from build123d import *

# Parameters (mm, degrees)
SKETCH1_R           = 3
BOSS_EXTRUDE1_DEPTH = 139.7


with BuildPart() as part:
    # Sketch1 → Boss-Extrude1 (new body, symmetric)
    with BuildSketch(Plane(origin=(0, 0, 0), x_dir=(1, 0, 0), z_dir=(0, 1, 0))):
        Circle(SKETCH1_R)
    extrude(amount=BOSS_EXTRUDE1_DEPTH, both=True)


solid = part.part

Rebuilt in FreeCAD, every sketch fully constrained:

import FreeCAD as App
import Part
import Sketcher

V = App.Vector
Q = App.Units.Quantity

doc = App.newDocument("Part")
body = doc.addObject("PartDesign::Body", "Body")

# Sketch on XZ plane
sketch1 = body.newObject("Sketcher::SketchObject", "Sketch")
sketch1.AttachmentSupport = (doc.getObject("XZ_Plane"), [""])
sketch1.MapMode = "FlatFace"
sketch1.addGeometry(Part.Circle(V(0, 0, 0), V(0, 0, 1), 3), False)
sketch1.addConstraint(Sketcher.Constraint("Coincident", 0, 3, -1, 1))
sketch1.addConstraint(Sketcher.Constraint("Diameter", 0, Q("6 mm")))
pad1 = body.newObject("PartDesign::Pad", "Pad")
pad1.Profile = sketch1
pad1.Length = 279.4
pad1.Midplane = True

doc.recompute()
